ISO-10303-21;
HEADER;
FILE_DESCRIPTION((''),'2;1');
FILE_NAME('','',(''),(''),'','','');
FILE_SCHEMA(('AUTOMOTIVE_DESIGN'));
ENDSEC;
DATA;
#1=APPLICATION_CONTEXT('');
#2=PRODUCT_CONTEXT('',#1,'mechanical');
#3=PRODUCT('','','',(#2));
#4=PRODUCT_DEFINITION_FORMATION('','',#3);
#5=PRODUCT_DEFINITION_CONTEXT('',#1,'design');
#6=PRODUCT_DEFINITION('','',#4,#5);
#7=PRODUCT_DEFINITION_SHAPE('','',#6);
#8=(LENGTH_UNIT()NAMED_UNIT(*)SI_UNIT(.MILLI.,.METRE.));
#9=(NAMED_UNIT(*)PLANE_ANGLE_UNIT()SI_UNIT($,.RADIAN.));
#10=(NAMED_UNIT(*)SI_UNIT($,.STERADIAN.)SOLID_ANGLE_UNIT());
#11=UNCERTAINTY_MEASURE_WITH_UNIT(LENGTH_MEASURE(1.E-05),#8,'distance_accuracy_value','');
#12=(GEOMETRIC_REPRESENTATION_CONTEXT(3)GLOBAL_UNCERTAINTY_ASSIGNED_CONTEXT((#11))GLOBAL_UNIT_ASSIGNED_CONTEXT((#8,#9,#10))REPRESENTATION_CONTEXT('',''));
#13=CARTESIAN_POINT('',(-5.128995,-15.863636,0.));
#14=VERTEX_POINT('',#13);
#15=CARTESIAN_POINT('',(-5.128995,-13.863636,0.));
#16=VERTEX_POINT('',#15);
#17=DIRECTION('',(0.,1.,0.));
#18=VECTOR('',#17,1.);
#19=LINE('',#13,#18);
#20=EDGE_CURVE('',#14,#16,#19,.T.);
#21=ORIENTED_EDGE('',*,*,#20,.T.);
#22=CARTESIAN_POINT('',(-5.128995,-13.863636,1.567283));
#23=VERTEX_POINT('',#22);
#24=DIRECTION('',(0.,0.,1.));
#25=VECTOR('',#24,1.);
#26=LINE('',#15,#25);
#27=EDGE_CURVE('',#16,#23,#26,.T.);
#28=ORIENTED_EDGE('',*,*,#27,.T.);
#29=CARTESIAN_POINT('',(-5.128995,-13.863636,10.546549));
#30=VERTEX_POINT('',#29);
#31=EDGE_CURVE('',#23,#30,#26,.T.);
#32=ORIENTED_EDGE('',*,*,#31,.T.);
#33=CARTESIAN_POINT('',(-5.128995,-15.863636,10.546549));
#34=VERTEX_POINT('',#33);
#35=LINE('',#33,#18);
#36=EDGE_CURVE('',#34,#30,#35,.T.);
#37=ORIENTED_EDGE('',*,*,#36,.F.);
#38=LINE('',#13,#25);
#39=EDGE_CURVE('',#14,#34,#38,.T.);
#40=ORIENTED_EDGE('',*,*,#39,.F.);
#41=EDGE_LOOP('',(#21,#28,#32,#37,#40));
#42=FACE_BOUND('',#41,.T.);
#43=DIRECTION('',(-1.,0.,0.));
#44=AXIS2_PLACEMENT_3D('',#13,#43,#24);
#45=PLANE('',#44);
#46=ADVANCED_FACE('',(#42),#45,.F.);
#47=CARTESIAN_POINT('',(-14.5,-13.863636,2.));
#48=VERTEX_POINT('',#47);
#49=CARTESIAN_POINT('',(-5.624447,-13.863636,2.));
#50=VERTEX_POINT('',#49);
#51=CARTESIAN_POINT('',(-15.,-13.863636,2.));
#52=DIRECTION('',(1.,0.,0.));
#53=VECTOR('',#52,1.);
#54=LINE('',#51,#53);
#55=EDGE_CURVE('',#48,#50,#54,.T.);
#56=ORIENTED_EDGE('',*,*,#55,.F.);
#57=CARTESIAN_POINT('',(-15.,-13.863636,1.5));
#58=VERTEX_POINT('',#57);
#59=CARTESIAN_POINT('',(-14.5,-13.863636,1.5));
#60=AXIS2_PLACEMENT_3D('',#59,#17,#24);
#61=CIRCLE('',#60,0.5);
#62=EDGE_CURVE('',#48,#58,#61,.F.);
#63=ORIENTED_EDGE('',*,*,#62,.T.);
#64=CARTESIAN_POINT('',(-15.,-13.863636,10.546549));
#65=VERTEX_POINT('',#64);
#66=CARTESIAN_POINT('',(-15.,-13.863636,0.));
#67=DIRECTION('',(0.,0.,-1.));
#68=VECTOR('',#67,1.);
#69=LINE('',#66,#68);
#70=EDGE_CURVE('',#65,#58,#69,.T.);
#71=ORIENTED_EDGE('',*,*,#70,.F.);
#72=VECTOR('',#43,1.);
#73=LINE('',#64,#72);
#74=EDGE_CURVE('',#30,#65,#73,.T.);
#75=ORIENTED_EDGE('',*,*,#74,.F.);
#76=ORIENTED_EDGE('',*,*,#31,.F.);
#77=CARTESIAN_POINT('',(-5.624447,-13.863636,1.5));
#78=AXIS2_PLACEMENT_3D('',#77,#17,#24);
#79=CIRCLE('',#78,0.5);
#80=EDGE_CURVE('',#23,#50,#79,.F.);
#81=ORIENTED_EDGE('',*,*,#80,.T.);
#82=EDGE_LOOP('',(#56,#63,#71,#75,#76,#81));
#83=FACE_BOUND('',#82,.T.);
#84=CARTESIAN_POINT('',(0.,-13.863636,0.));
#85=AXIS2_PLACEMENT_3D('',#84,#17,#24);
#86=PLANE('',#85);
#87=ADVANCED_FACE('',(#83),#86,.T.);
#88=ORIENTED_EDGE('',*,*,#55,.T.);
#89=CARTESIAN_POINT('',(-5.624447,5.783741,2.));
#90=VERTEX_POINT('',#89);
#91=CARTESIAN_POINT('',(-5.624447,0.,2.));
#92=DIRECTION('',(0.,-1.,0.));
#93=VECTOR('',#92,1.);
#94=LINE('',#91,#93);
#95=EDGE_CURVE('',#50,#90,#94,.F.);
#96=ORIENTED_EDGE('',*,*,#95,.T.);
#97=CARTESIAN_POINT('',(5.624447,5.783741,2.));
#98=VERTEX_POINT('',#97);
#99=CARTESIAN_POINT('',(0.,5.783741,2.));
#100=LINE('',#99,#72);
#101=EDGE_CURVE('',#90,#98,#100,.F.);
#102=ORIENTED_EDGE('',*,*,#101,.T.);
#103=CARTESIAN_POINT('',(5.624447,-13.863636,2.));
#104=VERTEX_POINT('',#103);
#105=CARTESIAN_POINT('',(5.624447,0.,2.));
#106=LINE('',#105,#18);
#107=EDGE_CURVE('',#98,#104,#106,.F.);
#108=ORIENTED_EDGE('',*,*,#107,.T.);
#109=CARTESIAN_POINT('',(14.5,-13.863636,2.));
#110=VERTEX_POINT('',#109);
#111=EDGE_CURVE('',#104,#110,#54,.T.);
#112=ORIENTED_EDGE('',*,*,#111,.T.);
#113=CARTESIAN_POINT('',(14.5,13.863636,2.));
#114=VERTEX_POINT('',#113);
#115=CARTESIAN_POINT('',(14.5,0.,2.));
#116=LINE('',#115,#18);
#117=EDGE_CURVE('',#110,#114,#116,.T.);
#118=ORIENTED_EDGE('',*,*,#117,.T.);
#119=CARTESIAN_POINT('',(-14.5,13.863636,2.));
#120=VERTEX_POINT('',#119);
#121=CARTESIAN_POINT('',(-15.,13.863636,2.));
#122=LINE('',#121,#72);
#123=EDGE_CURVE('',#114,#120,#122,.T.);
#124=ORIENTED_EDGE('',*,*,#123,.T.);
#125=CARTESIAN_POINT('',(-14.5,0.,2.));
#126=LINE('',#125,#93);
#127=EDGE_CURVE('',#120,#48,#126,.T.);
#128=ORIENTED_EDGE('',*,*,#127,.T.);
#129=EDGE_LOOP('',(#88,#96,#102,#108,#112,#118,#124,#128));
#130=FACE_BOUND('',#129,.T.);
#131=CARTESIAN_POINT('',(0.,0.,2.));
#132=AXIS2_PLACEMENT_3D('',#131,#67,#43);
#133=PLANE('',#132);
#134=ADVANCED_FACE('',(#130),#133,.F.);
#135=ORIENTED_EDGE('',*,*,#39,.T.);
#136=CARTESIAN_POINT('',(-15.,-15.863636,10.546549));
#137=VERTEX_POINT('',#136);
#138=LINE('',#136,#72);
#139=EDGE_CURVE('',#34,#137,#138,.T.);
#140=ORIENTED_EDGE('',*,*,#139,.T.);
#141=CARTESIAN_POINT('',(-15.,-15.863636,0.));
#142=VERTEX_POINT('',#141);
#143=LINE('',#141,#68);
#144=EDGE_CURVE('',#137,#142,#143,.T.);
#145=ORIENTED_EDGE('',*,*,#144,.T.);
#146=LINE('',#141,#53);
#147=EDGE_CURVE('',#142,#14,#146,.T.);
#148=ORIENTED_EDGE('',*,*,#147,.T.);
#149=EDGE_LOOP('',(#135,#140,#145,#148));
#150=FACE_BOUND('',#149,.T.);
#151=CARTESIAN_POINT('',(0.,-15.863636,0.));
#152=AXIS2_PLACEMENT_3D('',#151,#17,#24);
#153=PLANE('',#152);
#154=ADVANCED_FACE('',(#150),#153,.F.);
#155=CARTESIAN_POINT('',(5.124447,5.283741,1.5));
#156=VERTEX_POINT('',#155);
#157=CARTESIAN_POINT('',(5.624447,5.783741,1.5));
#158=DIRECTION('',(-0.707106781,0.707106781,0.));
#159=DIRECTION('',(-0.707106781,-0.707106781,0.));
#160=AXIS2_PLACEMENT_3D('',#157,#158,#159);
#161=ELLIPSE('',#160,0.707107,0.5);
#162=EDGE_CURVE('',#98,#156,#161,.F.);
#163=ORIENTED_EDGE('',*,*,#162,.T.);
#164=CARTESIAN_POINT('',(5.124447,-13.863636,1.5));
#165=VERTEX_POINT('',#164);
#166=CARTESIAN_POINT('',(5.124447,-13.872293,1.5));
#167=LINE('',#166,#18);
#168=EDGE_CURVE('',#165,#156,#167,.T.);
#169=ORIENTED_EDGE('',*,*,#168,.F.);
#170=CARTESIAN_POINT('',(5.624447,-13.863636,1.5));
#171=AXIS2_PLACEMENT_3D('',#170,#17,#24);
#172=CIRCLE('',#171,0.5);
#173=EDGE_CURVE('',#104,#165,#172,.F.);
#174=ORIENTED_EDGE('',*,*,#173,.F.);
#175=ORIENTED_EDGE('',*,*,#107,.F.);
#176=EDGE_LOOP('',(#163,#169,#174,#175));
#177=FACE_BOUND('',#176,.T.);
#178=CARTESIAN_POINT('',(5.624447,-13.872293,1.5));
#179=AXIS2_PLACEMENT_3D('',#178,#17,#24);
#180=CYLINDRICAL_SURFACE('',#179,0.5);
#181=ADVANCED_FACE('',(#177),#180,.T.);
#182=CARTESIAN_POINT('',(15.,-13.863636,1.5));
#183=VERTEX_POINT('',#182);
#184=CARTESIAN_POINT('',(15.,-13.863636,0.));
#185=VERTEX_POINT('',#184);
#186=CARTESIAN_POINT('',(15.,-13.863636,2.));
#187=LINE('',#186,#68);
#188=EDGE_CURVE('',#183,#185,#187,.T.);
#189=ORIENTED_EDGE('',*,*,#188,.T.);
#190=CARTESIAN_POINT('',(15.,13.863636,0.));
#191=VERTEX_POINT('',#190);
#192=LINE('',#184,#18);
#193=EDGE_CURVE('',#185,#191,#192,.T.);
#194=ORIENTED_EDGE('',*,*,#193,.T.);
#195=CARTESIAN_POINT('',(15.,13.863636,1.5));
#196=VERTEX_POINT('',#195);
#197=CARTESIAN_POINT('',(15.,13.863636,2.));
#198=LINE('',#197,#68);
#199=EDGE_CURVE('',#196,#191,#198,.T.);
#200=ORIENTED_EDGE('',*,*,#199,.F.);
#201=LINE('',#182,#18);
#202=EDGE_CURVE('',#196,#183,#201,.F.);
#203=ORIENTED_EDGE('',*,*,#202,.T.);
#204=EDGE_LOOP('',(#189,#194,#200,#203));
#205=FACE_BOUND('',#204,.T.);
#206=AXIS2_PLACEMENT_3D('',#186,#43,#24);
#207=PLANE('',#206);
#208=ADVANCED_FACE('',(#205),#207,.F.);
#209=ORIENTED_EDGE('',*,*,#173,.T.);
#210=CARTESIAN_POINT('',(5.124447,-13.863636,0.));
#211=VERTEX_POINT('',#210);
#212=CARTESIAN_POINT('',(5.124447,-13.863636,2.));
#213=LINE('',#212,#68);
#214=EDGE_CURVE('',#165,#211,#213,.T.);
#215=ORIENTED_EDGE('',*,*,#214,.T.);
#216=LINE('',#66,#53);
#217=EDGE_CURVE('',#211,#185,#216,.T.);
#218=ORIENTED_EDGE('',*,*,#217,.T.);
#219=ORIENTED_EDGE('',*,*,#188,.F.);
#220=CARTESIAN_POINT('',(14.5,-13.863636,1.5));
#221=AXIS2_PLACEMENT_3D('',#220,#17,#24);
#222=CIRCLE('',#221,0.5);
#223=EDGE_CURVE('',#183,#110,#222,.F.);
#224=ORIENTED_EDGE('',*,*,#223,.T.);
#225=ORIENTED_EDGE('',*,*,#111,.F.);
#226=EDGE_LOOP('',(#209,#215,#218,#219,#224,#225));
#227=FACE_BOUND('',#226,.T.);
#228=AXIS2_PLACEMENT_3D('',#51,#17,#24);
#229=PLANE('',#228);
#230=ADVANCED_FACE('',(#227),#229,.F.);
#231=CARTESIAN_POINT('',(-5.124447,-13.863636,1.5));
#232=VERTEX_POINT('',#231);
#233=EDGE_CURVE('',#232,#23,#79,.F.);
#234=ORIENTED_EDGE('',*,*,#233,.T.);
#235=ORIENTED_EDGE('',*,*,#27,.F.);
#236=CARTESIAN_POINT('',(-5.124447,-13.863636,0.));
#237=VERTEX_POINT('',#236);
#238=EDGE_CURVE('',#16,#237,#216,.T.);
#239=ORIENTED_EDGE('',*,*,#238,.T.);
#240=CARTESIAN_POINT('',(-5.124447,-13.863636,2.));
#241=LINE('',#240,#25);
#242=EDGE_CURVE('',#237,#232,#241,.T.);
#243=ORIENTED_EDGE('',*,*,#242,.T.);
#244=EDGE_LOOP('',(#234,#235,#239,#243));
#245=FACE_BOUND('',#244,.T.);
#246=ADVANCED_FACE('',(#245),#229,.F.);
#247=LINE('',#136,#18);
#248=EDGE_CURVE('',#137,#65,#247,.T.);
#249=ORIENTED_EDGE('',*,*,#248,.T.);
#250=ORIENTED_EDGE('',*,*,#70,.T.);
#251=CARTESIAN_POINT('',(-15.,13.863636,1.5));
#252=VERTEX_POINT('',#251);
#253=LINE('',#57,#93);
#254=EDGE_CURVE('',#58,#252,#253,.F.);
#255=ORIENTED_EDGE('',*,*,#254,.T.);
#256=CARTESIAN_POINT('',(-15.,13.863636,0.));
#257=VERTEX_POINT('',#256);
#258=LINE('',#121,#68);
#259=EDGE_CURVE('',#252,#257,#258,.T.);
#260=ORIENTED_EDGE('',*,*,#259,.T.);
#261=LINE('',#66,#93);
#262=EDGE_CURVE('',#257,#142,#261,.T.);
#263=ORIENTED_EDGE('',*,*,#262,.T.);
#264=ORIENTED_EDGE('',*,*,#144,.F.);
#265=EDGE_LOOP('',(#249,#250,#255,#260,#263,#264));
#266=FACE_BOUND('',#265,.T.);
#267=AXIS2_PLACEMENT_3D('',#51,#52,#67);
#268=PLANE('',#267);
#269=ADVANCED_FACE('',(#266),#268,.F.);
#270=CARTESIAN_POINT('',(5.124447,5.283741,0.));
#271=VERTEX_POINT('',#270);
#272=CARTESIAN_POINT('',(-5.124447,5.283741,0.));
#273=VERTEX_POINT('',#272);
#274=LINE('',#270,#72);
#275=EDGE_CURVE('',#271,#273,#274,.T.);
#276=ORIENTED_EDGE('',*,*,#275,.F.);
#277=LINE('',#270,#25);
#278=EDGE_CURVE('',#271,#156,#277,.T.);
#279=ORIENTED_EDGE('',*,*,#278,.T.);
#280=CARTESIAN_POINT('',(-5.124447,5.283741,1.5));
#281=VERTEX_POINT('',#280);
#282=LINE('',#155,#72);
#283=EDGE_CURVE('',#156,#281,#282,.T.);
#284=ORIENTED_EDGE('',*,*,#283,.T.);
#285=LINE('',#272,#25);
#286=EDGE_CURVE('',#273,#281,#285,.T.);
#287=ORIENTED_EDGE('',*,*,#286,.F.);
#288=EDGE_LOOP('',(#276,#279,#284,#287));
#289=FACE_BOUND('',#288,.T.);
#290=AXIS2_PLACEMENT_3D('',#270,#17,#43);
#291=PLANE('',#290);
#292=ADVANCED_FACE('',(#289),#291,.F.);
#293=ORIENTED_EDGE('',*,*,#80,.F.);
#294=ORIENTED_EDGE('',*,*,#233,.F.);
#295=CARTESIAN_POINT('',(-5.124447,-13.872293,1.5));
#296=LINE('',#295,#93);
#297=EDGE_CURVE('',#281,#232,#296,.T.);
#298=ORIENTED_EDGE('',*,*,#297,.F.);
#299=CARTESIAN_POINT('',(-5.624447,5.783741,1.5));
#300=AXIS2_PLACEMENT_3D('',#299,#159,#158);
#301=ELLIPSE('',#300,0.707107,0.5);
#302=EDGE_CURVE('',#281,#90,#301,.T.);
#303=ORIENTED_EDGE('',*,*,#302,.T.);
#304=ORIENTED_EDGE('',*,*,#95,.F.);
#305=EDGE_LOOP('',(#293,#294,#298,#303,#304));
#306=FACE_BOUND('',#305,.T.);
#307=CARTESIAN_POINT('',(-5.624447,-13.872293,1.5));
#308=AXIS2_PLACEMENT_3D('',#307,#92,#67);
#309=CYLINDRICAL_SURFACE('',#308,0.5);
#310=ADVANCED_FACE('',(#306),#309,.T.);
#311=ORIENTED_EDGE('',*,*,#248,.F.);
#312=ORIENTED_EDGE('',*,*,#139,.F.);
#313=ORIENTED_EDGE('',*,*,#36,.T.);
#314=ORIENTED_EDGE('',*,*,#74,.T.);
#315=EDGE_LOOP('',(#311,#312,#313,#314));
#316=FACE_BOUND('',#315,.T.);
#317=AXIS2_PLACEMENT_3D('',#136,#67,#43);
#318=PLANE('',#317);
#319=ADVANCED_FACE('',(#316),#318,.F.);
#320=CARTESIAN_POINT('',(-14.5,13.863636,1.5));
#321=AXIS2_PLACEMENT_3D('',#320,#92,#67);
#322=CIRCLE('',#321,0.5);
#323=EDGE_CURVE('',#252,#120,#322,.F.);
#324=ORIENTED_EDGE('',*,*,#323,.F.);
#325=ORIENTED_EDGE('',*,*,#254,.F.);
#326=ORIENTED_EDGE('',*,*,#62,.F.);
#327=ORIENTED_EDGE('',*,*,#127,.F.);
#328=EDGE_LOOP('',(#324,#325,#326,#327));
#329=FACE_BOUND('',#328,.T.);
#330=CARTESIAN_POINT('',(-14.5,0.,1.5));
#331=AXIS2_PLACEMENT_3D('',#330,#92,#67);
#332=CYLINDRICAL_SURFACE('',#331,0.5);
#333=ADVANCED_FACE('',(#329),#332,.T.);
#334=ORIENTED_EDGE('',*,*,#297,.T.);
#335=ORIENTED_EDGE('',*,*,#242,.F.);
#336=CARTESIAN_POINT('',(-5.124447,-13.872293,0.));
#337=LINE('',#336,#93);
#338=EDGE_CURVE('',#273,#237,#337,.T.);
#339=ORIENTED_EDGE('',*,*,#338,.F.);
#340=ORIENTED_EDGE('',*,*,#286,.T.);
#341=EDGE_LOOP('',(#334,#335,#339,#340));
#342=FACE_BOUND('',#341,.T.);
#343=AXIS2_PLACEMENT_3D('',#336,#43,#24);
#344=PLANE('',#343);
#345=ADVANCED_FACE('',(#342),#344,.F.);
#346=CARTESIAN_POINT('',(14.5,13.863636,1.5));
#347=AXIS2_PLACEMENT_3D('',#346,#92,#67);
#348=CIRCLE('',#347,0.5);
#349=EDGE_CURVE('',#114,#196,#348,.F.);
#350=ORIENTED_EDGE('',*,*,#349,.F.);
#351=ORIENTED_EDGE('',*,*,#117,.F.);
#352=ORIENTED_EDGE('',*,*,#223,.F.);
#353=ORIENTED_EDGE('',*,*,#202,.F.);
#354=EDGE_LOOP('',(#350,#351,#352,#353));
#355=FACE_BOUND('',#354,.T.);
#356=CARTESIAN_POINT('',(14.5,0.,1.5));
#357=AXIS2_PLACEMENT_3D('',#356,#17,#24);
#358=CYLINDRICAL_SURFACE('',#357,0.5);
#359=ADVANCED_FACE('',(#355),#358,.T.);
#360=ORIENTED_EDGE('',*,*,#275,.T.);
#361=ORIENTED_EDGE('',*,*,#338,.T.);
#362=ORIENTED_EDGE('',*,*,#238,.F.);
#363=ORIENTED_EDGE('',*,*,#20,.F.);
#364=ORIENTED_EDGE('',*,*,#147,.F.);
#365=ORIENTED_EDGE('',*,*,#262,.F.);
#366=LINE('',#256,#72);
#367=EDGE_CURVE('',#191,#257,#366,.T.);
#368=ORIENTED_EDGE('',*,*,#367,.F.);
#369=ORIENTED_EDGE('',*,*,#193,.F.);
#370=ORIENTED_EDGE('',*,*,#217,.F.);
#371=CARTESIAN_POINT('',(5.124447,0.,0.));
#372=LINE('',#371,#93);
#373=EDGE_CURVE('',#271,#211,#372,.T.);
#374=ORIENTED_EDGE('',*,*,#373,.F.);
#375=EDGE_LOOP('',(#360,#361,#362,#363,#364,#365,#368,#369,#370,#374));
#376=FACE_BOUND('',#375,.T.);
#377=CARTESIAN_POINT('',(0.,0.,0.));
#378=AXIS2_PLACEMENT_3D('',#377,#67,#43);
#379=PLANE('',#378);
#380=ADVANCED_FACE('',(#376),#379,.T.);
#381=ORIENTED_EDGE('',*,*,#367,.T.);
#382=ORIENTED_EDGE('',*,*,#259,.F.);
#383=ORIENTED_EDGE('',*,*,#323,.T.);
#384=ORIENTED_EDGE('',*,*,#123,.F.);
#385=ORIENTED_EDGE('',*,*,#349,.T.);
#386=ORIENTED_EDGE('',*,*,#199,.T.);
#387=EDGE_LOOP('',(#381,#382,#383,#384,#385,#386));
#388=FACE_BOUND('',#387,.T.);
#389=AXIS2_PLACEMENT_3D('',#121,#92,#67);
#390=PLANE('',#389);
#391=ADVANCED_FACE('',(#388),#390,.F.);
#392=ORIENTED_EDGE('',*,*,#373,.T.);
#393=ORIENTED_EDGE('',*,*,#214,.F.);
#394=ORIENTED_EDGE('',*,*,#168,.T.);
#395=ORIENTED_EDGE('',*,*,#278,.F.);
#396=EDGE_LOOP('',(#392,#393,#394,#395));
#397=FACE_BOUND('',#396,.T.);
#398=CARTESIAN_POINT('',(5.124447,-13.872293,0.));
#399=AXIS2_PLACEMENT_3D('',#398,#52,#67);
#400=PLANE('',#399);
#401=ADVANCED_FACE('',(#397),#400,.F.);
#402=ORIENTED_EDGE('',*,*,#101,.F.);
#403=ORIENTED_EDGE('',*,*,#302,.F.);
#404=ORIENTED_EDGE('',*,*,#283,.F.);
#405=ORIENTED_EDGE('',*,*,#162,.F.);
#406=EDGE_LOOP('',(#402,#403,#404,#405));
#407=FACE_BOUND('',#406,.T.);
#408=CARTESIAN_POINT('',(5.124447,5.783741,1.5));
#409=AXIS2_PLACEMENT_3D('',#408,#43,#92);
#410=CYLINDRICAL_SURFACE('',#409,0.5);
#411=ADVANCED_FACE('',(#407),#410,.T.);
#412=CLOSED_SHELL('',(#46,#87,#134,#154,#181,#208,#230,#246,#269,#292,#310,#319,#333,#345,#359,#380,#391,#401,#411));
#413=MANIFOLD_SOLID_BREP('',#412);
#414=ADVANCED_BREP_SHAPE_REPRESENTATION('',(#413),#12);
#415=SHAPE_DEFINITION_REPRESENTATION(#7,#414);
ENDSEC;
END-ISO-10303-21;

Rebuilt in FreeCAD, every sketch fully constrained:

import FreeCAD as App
import Part
import Sketcher

V = App.Vector
Q = App.Units.Quantity


def edges_at(feature, points):
    """Names of the edges that pass closest to the given points."""
    edges = feature.Shape.Edges
    near = lambda p: min(range(len(edges)), key=lambda i: edges[i].distToShape(Part.Vertex(*p))[0])
    return sorted({f"Edge{near(p) + 1}" for p in points})

doc = App.newDocument("Part")
body = doc.addObject("PartDesign::Body", "Body")

# Sketch on XY plane
sketch1 = body.newObject("Sketcher::SketchObject", "Sketch")
sketch1.AttachmentSupport = (doc.getObject("XY_Plane"), [""])
sketch1.MapMode = "FlatFace"
sketch1.addGeometry([
    Part.LineSegment(V(-15, 14, 0), V(-15, -14, 0)),
    Part.LineSegment(V(-15, -14, 0), V(15, -14, 0)),
    Part.LineSegment(V(15, -14, 0), V(15, 14, 0)),
    Part.LineSegment(V(15, 14, 0), V(-15, 14, 0)),
], False)
sketch1.addConstraint([
    Sketcher.Constraint("Coincident", 0, 2, 1, 1),
    Sketcher.Constraint("Coincident", 1, 2, 2, 1),
    Sketcher.Constraint("Coincident", 2, 2, 3, 1),
    Sketcher.Constraint("Coincident", 3, 2, 0, 1),
    Sketcher.Constraint("Vertical", 0),
    Sketcher.Constraint("Horizontal", 1),
    Sketcher.Constraint("Vertical", 2),
    Sketcher.Constraint("Horizontal", 3),
    Sketcher.Constraint("Symmetric", 0, 2, 2, 2, -1, 1),
    Sketcher.Constraint("DistanceX", 1, 1, 1, 2, Q("30 mm")),
    Sketcher.Constraint("DistanceY", 0, 2, 0, 1, Q("27.727273 mm")),
])
pad1 = body.newObject("PartDesign::Pad", "Pad")
pad1.Profile = sketch1
pad1.Length = 2

# Sketch on XY plane
sketch2 = body.newObject("Sketcher::SketchObject", "Sketch001")
sketch2.AttachmentSupport = (doc.getObject("XY_Plane"), [""])
sketch2.MapMode = "FlatFace"
sketch2.AttachmentOffset = App.Placement(V(0, 0, 2), App.Rotation())
sketch2.addGeometry([
    Part.LineSegment(V(-5, 5, 0), V(-5, -14, 0)),
    Part.LineSegment(V(-5, -14, 0), V(5, -14, 0)),
    Part.LineSegment(V(5, -14, 0), V(5, 5, 0)),
    Part.LineSegment(V(5, 5, 0), V(-5, 5, 0)),
], False)
sketch2.addConstraint([
    Sketcher.Constraint("Coincident", 0, 2, 1, 1),
    Sketcher.Constraint("Coincident", 1, 2, 2, 1),
    Sketcher.Constraint("Coincident", 2, 2, 3, 1),
    Sketcher.Constraint("Coincident", 3, 2, 0, 1),
    Sketcher.Constraint("Vertical", 0),
    Sketcher.Constraint("Horizontal", 1),
    Sketcher.Constraint("Vertical", 2),
    Sketcher.Constraint("Horizontal", 3),
    Sketcher.Constraint("DistanceX", 1, 1, 1, 2, Q("10.248894 mm")),
    Sketcher.Constraint("DistanceY", 0, 2, 0, 1, Q("19.156033 mm")),
    Sketcher.Constraint("DistanceY", -1, 1, 2, 2, Q("5.283741 mm")),
    Sketcher.Constraint("DistanceX", 0, 2, -1, 1, Q("5.124447 mm")),
])
pocket1 = body.newObject("PartDesign::Pocket", "Pocket")
pocket1.Profile = sketch2
pocket1.Length = 2
doc.recompute()

fillet = body.newObject("PartDesign::Fillet", "Fillet")
fillet.Base = (pocket1, edges_at(pocket1, [(-15, 0, 2)]))
fillet.Radius = 0.5
doc.recompute()

fillet2 = body.newObject("PartDesign::Fillet", "Fillet001")
fillet2.Base = (fillet, edges_at(fillet, [(15, 0, 2)]))
fillet2.Radius = 0.5
doc.recompute()

fillet3 = body.newObject("PartDesign::Fillet", "Fillet002")
fillet3.Base = (fillet2, edges_at(fillet2, [(-5.124, -4.29, 2)]))
fillet3.Radius = 0.5
doc.recompute()

fillet4 = body.newObject("PartDesign::Fillet", "Fillet003")
fillet4.Base = (fillet3, edges_at(fillet3, [(5.124, -4.29, 2)]))
fillet4.Radius = 0.5
doc.recompute()

fillet5 = body.newObject("PartDesign::Fillet", "Fillet004")
fillet5.Base = (fillet4, edges_at(fillet4, [(0, 5.284, 2)]))
fillet5.Radius = 0.5

# Sketch on XZ plane
sketch3 = body.newObject("Sketcher::SketchObject", "Sketch002")
sketch3.AttachmentSupport = (doc.getObject("XZ_Plane"), [""])
sketch3.MapMode = "FlatFace"
sketch3.AttachmentOffset = App.Placement(V(0, 0, 13.863636), App.Rotation())
sketch3.addGeometry([
    Part.LineSegment(V(-5, 0, 0), V(-5, 11, 0)),
    Part.LineSegment(V(-5, 11, 0), V(-15, 11, 0)),
    Part.LineSegment(V(-15, 11, 0), V(-15, 0, 0)),
    Part.LineSegment(V(-15, 0, 0), V(-5, 0, 0)),
], False)
sketch3.addConstraint([
    Sketcher.Constraint("Coincident", 0, 2, 1, 1),
    Sketcher.Constraint("Coincident", 1, 2, 2, 1),
    Sketcher.Constraint("Coincident", 2, 2, 3, 1),
    Sketcher.Constraint("Coincident", 3, 2, 0, 1),
    Sketcher.Constraint("Vertical", 0),
    Sketcher.Constraint("Horizontal", 1),
    Sketcher.Constraint("Vertical", 2),
    Sketcher.Constraint("Horizontal", 3),
    Sketcher.Constraint("PointOnObject", 2, 2, -1),
    Sketcher.Constraint("DistanceX", 1, 2, -1, 1, Q("15 mm")),
    Sketcher.Constraint("DistanceY", 0, 1, 0, 2, Q("10.546549 mm")),
    Sketcher.Constraint("DistanceX", 1, 2, 1, 1, Q("9.871005 mm")),
])
pad2 = body.newObject("PartDesign::Pad", "Pad001")
pad2.Profile = sketch3
pad2.Length = 2

doc.recompute()
